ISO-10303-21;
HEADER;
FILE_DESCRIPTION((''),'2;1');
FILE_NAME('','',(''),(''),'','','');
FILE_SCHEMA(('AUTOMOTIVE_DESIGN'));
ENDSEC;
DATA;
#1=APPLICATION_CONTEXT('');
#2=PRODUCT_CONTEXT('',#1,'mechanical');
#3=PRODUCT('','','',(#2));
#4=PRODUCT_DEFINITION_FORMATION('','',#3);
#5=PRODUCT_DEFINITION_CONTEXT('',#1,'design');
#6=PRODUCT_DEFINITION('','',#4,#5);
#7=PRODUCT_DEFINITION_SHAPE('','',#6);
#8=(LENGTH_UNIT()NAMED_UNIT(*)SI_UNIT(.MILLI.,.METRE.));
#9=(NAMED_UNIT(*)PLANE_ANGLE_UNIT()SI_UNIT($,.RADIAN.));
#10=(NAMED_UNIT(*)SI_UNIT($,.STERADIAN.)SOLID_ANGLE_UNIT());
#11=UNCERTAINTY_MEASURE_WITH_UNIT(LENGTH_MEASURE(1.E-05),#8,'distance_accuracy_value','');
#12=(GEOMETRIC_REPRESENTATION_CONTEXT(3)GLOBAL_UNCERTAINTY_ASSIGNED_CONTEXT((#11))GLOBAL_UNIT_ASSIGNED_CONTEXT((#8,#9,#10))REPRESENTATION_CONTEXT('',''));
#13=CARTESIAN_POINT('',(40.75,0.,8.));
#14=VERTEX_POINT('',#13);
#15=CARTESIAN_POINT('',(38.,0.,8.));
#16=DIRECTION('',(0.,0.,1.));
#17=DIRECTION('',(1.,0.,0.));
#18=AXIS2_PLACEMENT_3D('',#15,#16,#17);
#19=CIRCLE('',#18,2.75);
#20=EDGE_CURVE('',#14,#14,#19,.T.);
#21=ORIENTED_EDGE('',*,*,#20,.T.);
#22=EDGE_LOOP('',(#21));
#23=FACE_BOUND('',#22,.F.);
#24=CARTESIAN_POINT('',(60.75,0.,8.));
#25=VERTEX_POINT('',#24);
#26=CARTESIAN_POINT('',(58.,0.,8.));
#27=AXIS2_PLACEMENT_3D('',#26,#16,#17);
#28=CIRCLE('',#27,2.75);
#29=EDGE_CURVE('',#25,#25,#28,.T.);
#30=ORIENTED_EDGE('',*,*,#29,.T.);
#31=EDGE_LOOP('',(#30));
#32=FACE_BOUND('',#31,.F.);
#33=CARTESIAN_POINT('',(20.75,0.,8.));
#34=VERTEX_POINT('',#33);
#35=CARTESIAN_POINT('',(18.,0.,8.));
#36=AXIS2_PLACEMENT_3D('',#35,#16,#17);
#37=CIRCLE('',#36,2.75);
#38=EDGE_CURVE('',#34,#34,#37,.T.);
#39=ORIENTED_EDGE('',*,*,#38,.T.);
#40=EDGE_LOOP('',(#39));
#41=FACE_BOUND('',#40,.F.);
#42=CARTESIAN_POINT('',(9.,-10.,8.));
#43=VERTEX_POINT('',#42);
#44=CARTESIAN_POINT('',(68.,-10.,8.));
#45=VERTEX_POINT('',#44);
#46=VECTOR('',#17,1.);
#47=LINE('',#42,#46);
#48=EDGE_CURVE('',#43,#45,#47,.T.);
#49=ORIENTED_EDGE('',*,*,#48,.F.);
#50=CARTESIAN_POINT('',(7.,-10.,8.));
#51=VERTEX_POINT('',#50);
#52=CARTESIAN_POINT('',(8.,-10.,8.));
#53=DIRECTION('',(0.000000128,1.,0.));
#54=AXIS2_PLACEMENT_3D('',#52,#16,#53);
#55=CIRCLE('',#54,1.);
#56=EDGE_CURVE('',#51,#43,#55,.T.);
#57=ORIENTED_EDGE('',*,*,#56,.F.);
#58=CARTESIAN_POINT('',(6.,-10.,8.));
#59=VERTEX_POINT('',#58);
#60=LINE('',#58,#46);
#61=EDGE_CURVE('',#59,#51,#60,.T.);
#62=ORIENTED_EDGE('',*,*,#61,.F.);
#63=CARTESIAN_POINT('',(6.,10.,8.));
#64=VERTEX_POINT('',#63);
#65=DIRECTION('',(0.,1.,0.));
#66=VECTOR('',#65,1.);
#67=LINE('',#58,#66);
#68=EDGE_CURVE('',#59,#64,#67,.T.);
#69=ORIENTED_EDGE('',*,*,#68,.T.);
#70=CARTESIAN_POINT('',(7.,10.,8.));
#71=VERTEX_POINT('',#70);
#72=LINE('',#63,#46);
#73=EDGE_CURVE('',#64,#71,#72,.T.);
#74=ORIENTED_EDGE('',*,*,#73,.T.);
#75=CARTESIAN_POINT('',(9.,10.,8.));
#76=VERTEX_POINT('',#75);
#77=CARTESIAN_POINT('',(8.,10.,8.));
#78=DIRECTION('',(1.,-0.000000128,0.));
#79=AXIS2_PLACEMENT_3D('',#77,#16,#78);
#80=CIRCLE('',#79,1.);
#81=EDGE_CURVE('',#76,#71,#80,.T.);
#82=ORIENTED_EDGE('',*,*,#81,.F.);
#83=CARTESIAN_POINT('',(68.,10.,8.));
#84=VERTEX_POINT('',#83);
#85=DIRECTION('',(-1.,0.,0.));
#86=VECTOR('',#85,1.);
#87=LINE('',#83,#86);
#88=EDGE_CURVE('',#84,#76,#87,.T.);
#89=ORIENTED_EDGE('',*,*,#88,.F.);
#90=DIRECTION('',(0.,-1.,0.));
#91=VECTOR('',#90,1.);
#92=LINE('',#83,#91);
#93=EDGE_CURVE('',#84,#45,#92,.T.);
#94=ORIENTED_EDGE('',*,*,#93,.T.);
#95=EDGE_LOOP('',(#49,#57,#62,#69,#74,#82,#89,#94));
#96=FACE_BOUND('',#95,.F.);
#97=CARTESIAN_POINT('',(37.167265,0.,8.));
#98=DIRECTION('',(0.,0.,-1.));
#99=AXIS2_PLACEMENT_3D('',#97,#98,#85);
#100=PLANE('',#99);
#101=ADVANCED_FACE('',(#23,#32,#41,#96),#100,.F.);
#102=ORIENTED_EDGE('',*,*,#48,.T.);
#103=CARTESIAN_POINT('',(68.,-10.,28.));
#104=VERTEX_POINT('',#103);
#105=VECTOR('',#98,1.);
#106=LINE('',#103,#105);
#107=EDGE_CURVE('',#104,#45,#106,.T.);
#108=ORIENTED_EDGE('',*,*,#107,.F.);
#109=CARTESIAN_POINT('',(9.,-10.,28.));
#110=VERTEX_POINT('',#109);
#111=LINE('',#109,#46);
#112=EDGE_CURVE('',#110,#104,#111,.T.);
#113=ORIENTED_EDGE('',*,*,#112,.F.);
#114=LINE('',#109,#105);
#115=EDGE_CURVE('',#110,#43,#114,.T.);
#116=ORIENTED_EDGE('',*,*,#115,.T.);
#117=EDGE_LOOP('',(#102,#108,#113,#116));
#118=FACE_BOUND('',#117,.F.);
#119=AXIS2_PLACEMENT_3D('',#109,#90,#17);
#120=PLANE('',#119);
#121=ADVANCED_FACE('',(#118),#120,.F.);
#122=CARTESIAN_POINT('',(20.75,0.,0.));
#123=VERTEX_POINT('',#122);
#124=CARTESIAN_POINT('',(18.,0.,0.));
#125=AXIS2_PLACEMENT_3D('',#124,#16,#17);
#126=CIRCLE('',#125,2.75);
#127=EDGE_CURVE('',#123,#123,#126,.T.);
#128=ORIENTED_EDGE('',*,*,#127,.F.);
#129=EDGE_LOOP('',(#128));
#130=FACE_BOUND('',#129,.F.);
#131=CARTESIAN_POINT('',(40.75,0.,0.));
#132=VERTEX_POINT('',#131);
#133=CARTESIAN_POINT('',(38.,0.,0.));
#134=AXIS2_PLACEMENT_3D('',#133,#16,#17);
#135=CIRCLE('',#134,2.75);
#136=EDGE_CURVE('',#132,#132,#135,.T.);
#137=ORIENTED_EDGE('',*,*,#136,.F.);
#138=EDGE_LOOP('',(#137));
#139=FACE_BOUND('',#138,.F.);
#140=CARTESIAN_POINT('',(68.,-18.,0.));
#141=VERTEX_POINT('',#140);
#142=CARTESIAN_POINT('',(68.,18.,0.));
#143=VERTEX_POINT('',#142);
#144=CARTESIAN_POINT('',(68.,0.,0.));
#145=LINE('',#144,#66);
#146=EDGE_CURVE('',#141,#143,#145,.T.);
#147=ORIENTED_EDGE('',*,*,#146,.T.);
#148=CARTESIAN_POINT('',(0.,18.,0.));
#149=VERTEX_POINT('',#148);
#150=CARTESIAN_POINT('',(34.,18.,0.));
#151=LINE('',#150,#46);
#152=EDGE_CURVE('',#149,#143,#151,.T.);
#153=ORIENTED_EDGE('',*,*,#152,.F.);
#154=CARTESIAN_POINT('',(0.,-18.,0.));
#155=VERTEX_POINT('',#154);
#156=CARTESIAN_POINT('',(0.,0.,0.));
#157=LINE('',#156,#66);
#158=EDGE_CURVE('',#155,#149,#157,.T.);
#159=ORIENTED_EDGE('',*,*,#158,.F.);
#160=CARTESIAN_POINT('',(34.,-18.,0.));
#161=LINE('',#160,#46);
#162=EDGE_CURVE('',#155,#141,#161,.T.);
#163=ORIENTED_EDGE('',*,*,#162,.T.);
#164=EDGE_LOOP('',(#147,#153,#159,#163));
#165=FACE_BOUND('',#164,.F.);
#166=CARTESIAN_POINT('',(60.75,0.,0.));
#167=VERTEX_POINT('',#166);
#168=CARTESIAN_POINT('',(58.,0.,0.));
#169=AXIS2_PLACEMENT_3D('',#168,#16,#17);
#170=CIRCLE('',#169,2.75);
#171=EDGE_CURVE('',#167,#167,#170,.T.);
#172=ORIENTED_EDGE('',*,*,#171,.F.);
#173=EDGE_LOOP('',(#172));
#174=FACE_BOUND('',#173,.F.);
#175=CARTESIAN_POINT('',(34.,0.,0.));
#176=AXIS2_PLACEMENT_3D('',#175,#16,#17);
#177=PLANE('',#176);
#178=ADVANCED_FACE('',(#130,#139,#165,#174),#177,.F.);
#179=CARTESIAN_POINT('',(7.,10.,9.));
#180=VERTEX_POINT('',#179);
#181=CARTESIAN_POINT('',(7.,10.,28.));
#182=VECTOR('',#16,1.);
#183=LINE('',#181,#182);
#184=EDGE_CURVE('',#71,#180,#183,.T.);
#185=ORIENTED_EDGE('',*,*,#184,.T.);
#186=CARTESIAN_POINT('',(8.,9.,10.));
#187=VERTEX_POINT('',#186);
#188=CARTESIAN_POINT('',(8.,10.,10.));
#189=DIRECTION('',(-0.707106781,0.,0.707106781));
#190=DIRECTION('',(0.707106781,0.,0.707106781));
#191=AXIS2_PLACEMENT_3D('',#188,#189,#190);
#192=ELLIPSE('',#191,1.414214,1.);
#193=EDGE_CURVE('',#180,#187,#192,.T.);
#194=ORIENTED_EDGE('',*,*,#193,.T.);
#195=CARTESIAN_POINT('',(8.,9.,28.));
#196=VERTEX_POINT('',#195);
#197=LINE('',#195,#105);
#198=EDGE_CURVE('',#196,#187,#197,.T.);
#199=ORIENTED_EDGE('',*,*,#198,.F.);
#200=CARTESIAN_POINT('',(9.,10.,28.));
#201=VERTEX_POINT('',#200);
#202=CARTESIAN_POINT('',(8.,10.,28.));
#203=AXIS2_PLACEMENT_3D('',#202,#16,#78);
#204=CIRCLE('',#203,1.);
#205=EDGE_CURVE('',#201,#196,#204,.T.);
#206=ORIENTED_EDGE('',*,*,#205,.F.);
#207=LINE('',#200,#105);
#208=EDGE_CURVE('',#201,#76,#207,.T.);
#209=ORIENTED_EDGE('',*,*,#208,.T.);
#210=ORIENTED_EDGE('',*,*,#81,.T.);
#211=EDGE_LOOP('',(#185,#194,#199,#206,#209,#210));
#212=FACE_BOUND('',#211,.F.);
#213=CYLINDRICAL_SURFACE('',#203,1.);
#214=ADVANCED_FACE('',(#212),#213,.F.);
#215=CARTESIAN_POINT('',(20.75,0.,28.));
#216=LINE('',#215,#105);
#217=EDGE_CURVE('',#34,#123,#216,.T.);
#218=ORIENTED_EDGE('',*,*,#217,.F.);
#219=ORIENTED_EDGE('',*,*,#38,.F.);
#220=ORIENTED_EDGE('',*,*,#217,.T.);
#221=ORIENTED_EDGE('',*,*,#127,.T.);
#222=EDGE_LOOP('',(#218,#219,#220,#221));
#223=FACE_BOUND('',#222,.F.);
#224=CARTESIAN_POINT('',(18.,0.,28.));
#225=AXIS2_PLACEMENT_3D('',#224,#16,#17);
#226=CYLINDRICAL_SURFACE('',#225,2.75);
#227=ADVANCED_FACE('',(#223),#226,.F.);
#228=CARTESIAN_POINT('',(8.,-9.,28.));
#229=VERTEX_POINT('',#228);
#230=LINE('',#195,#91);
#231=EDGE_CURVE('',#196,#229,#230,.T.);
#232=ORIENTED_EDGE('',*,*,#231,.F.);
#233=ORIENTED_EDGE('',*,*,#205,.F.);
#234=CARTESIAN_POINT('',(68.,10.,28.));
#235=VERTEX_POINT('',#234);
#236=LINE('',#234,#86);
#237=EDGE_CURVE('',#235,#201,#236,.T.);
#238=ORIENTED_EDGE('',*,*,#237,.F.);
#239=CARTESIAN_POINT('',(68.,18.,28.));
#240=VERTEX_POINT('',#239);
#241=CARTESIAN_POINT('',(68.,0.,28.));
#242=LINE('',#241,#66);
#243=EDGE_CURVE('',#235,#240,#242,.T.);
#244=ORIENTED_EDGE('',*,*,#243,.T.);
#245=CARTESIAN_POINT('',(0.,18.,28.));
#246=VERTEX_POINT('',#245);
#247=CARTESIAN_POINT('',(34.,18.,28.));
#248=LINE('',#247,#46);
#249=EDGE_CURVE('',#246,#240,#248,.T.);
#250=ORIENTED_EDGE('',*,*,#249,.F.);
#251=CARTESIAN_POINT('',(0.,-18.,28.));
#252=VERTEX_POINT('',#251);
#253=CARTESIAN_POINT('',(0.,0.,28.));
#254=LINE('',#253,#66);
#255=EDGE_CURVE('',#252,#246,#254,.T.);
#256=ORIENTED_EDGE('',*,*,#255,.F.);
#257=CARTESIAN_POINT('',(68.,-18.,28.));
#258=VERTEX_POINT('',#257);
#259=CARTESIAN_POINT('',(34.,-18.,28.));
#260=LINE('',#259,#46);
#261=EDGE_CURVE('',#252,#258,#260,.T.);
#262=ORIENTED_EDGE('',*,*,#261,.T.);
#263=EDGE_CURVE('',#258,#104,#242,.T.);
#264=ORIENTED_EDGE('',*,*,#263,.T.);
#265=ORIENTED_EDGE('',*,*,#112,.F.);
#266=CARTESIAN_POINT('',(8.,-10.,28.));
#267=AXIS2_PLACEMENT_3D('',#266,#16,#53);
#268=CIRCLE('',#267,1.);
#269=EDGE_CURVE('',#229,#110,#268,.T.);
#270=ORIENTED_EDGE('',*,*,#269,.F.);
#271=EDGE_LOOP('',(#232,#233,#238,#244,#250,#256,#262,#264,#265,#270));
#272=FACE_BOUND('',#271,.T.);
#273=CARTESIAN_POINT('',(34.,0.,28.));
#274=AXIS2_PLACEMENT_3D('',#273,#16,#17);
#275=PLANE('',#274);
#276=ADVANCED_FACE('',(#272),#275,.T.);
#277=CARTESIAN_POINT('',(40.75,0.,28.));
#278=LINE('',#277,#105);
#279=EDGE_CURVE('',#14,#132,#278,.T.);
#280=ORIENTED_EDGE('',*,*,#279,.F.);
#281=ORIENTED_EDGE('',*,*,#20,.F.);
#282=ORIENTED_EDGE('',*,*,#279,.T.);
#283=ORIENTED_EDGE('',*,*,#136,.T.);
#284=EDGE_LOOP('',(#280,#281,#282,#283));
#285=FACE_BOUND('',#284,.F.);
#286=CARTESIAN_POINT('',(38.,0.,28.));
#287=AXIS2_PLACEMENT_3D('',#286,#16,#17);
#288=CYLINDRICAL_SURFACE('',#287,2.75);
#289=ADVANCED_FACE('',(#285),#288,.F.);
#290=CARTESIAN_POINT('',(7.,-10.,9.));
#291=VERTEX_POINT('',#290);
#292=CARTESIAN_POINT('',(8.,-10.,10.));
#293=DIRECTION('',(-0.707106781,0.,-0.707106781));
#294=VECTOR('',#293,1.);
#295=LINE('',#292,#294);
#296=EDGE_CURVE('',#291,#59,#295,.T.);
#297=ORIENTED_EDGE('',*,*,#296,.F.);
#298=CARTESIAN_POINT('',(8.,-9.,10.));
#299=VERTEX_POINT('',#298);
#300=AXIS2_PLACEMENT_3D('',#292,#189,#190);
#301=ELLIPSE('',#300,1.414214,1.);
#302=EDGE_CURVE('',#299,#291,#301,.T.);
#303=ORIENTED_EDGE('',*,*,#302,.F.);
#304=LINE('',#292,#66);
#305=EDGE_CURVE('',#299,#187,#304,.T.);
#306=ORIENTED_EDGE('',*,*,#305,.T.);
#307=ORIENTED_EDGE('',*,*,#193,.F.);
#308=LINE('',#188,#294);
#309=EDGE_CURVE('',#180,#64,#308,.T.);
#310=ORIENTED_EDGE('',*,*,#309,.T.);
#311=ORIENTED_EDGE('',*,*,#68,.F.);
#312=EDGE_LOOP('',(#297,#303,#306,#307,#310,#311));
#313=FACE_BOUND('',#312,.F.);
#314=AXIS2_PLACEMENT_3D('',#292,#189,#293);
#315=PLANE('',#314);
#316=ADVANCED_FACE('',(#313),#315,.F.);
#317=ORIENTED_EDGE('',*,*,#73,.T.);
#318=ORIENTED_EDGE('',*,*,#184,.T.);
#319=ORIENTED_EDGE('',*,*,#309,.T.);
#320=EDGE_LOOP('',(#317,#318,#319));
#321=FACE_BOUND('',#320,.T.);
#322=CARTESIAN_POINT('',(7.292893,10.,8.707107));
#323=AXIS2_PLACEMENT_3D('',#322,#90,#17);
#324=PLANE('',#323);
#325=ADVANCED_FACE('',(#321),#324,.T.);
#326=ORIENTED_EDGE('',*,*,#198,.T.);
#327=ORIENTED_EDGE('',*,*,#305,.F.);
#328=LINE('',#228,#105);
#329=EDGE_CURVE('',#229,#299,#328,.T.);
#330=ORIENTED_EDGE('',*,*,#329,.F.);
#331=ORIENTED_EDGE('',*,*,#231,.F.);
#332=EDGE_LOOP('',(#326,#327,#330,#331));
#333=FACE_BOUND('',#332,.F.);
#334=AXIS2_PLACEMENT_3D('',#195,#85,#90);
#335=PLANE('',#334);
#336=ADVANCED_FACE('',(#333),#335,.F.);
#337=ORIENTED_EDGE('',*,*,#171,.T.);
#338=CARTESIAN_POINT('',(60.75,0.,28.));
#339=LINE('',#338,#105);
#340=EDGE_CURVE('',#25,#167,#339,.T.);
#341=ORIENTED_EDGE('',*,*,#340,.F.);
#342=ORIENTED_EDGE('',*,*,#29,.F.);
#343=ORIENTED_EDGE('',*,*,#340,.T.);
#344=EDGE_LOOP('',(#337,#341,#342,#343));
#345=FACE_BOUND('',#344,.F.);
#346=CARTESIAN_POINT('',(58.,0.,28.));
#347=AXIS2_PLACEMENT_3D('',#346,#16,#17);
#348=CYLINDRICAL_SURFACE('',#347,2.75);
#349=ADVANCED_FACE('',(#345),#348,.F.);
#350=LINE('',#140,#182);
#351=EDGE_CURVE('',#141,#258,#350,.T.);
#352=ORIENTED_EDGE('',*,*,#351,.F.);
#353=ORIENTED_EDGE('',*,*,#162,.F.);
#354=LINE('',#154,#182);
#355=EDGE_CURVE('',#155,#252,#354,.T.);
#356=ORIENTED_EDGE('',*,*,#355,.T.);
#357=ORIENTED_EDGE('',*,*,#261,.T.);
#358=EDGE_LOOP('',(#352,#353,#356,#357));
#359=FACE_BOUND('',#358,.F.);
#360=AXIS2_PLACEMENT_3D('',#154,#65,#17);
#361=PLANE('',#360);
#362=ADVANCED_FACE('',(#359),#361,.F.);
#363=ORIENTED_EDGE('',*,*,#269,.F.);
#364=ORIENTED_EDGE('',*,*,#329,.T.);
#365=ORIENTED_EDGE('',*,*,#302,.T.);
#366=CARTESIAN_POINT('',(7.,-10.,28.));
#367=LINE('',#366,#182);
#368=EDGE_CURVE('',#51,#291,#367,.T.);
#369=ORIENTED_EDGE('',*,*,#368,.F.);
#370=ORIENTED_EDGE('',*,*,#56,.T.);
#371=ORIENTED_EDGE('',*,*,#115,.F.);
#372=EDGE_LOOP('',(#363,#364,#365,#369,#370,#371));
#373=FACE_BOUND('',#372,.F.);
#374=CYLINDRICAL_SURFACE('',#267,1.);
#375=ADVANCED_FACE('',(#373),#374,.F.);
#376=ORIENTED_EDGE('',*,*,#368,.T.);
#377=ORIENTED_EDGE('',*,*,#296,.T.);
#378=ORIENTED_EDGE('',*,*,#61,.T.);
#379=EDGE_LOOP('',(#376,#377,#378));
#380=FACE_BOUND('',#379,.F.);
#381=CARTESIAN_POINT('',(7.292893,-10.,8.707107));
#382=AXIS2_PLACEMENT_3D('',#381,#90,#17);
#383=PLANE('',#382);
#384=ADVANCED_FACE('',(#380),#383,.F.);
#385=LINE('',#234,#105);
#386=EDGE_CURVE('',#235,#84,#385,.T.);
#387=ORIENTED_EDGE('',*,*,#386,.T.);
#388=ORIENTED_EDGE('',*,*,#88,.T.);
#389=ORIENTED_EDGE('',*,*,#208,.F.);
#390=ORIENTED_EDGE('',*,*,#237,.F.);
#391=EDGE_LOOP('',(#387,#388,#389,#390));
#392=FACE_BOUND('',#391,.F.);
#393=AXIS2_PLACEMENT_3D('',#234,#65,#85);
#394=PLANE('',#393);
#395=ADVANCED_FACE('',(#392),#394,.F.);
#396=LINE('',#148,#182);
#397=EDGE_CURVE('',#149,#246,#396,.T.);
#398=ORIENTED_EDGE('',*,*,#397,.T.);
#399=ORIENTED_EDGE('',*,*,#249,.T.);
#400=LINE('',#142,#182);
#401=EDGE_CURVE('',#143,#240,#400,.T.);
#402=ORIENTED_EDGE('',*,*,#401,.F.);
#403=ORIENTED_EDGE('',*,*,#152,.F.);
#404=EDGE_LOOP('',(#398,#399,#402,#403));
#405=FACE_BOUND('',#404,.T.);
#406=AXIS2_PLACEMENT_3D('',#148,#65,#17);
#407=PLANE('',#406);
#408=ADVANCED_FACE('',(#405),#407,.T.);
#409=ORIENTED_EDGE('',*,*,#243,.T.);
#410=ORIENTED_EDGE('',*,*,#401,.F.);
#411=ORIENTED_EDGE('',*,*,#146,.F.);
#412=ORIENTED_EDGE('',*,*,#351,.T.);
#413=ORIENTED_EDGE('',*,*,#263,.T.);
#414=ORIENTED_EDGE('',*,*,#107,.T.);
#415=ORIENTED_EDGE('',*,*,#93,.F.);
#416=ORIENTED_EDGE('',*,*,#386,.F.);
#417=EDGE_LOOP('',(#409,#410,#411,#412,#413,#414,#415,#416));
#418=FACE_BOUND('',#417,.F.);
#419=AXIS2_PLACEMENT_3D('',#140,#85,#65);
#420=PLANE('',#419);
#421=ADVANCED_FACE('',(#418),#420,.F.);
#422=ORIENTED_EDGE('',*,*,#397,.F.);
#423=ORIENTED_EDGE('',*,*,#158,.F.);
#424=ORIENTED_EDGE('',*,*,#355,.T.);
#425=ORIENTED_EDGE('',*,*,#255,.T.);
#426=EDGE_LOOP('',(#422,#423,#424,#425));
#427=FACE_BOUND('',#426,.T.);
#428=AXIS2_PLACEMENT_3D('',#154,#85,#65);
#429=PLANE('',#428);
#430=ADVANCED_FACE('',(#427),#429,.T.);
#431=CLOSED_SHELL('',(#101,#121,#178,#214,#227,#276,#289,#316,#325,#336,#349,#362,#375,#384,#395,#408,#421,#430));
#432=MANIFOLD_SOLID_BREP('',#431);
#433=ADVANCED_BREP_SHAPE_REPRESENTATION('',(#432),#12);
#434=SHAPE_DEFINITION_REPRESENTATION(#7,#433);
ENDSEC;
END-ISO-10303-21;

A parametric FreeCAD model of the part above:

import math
import FreeCAD as App
import Part
import Sketcher
from FreeCAD import Vector
Q = App.Units.Quantity

doc = App.newDocument("Part")
body = doc.addObject("PartDesign::Body", "Body")

# Sketch on XY plane
sketch1 = doc.addObject("Sketcher::SketchObject", "Sketch")
body.addObject(sketch1)
sketch1.AttachmentSupport = (doc.XY_Plane, [""])
sketch1.MapMode = "FlatFace"
sketch1.addGeometry([
    Part.LineSegment(Vector(0, 18, 0), Vector(0, -18, 0)),
    Part.LineSegment(Vector(0, -18, 0), Vector(68, -18, 0)),
    Part.LineSegment(Vector(68, -18, 0), Vector(68, 18, 0)),
    Part.LineSegment(Vector(68, 18, 0), Vector(0, 18, 0)),
], False)
sketch1.addConstraint([
    Sketcher.Constraint("Coincident", 0, 2, 1, 1),
    Sketcher.Constraint("Coincident", 1, 2, 2, 1),
    Sketcher.Constraint("Coincident", 2, 2, 3, 1),
    Sketcher.Constraint("Coincident", 3, 2, 0, 1),
    Sketcher.Constraint("Vertical", 0),
    Sketcher.Constraint("Horizontal", 1),
    Sketcher.Constraint("Vertical", 2),
    Sketcher.Constraint("Horizontal", 3),
    Sketcher.Constraint("Symmetric", 0, 2, 3, 2, -1, 1),
    Sketcher.Constraint("DistanceX", 1, 1, 1, 2, Q("68 mm")),
    Sketcher.Constraint("DistanceY", 0, 2, 0, 1, Q("36 mm")),
])
pad1 = doc.addObject("PartDesign::Pad", "Pad")
body.addObject(pad1)
pad1.Profile = sketch1
pad1.Length = 28

# Sketch on XY plane
sketch2 = doc.addObject("Sketcher::SketchObject", "Sketch001")
body.addObject(sketch2)
sketch2.AttachmentSupport = (doc.XY_Plane, [""])
sketch2.MapMode = "FlatFace"
sketch2.AttachmentOffset = App.Placement(Vector(0, 0, 28), App.Rotation())
sketch2.addGeometry([
    Part.LineSegment(Vector(68, -10, 0), Vector(68, 10, 0)),  # 0
    Part.LineSegment(Vector(68, 10, 0), Vector(9, 10, 0)),  # 1
    Part.ArcOfCircle(Part.Circle(Vector(8, 10, 0), Vector(0, 0, 1), 1), math.radians(0), math.radians(270)),  # 2
    Part.LineSegment(Vector(8, 9, 0), Vector(8, -9, 0)),  # 3
    Part.ArcOfCircle(Part.Circle(Vector(8, -10, 0), Vector(0, 0, 1), 1), math.radians(90), math.radians(360)),  # 4
    Part.LineSegment(Vector(9, -10, 0), Vector(68, -10, 0)),  # 5
], False)
sketch2.addConstraint([
    Sketcher.Constraint("Coincident", 0, 2, 1, 1),
    Sketcher.Constraint("Coincident", 1, 2, 2, 1),
    Sketcher.Constraint("Coincident", 2, 2, 3, 1),
    Sketcher.Constraint("Coincident", 3, 2, 4, 1),
    Sketcher.Constraint("Coincident", 4, 2, 5, 1),
    Sketcher.Constraint("Coincident", 5, 2, 0, 1),
    Sketcher.Constraint("Vertical", 0),
    Sketcher.Constraint("Horizontal", 1),
    Sketcher.Constraint("Vertical", 3),
    Sketcher.Constraint("Horizontal", 5),
    Sketcher.Constraint("Equal", 2, 4),
    Sketcher.Constraint("Symmetric", 2, 3, 4, 3, -1),
    Sketcher.Constraint("Horizontal", 2, 3, 0, 2),
    Sketcher.Constraint("Vertical", 4, 3, 2, 2),
    Sketcher.Constraint("Radius", 2, Q("1 mm")),
    Sketcher.Constraint("DistanceX", 1, 2, 1, 1, Q("59 mm")),
    Sketcher.Constraint("DistanceY", 0, 1, 0, 2, Q("20 mm")),
    Sketcher.Constraint("DistanceY", 3, 2, 3, 1, Q("18 mm")),
    Sketcher.Constraint("DistanceX", -1, 1, 2, 3, Q("8 mm")),
])
pocket1 = doc.addObject("PartDesign::Pocket", "Pocket")
body.addObject(pocket1)
pocket1.Profile = sketch2
pocket1.Length = 20

# Sketch on XY plane
sketch3 = doc.addObject("Sketcher::SketchObject", "Sketch002")
body.addObject(sketch3)
sketch3.AttachmentSupport = (doc.XY_Plane, [""])
sketch3.MapMode = "FlatFace"
sketch3.AttachmentOffset = App.Placement(Vector(0, 0, 28), App.Rotation())
sketch3.addGeometry([
    Part.Circle(Vector(18, 0, 0), Vector(0, 0, 1), 2.8),  # 0
    Part.Circle(Vector(38, 0, 0), Vector(0, 0, 1), 2.8),  # 1
    Part.Circle(Vector(58, 0, 0), Vector(0, 0, 1), 2.8),  # 2
    Part.Circle(Vector(78, 0, 0), Vector(0, 0, 1), 2.8),  # 3
    Part.Circle(Vector(98, 0, 0), Vector(0, 0, 1), 2.8),  # 4
], False)
sketch3.addConstraint([
    Sketcher.Constraint("Equal", 0, 1),
    Sketcher.Constraint("Equal", 1, 2),
    Sketcher.Constraint("Equal", 2, 3),
    Sketcher.Constraint("Equal", 3, 4),
    Sketcher.Constraint("PointOnObject", 0, 3, -1),
    Sketcher.Constraint("PointOnObject", 1, 3, -1),
    Sketcher.Constraint("PointOnObject", 2, 3, -1),
    Sketcher.Constraint("PointOnObject", 3, 3, -1),
    Sketcher.Constraint("PointOnObject", 4, 3, -1),
    Sketcher.Constraint("Diameter", 0, Q("5.5 mm")),
    Sketcher.Constraint("DistanceX", -1, 1, 0, 3, Q("18 mm")),
    Sketcher.Constraint("DistanceX", -1, 1, 1, 3, Q("38 mm")),
    Sketcher.Constraint("DistanceX", -1, 1, 2, 3, Q("58 mm")),
    Sketcher.Constraint("DistanceX", -1, 1, 3, 3, Q("78 mm")),
    Sketcher.Constraint("DistanceX", -1, 1, 4, 3, Q("98 mm")),
])
pocket2 = doc.addObject("PartDesign::Pocket", "Pocket001")
body.addObject(pocket2)
pocket2.Profile = sketch3
pocket2.Length = 28

# Sketch on XZ plane
sketch4 = doc.addObject("Sketcher::SketchObject", "Sketch003")
body.addObject(sketch4)
sketch4.AttachmentSupport = (doc.XZ_Plane, [""])
sketch4.MapMode = "FlatFace"
sketch4.AttachmentOffset = App.Placement(Vector(0, 0, 10), App.Rotation())
sketch4.addGeometry([
    Part.LineSegment(Vector(8, 8, 0), Vector(8, 10, 0)),
    Part.LineSegment(Vector(8, 10, 0), Vector(6, 8, 0)),
    Part.LineSegment(Vector(6, 8, 0), Vector(8, 8, 0)),
], False)
sketch4.addConstraint([
    Sketcher.Constraint("Coincident", 0, 2, 1, 1),
    Sketcher.Constraint("Coincident", 1, 2, 2, 1),
    Sketcher.Constraint("Coincident", 2, 2, 0, 1),
    Sketcher.Constraint("Vertical", 0),
    Sketcher.Constraint("Horizontal", 2),
    Sketcher.Constraint("Equal", 2, 0),
    Sketcher.Constraint("DistanceX", 2, 1, 2, 2, Q("2 mm")),
    Sketcher.Constraint("DistanceX", -1, 1, 0, 2, Q("8 mm")),
    Sketcher.Constraint("DistanceY", -1, 1, 0, 2, Q("10 mm")),
])
pocket3 = doc.addObject("PartDesign::Pocket", "Pocket002")
body.addObject(pocket3)
pocket3.Profile = sketch4
pocket3.Length = 20

doc.recompute()
